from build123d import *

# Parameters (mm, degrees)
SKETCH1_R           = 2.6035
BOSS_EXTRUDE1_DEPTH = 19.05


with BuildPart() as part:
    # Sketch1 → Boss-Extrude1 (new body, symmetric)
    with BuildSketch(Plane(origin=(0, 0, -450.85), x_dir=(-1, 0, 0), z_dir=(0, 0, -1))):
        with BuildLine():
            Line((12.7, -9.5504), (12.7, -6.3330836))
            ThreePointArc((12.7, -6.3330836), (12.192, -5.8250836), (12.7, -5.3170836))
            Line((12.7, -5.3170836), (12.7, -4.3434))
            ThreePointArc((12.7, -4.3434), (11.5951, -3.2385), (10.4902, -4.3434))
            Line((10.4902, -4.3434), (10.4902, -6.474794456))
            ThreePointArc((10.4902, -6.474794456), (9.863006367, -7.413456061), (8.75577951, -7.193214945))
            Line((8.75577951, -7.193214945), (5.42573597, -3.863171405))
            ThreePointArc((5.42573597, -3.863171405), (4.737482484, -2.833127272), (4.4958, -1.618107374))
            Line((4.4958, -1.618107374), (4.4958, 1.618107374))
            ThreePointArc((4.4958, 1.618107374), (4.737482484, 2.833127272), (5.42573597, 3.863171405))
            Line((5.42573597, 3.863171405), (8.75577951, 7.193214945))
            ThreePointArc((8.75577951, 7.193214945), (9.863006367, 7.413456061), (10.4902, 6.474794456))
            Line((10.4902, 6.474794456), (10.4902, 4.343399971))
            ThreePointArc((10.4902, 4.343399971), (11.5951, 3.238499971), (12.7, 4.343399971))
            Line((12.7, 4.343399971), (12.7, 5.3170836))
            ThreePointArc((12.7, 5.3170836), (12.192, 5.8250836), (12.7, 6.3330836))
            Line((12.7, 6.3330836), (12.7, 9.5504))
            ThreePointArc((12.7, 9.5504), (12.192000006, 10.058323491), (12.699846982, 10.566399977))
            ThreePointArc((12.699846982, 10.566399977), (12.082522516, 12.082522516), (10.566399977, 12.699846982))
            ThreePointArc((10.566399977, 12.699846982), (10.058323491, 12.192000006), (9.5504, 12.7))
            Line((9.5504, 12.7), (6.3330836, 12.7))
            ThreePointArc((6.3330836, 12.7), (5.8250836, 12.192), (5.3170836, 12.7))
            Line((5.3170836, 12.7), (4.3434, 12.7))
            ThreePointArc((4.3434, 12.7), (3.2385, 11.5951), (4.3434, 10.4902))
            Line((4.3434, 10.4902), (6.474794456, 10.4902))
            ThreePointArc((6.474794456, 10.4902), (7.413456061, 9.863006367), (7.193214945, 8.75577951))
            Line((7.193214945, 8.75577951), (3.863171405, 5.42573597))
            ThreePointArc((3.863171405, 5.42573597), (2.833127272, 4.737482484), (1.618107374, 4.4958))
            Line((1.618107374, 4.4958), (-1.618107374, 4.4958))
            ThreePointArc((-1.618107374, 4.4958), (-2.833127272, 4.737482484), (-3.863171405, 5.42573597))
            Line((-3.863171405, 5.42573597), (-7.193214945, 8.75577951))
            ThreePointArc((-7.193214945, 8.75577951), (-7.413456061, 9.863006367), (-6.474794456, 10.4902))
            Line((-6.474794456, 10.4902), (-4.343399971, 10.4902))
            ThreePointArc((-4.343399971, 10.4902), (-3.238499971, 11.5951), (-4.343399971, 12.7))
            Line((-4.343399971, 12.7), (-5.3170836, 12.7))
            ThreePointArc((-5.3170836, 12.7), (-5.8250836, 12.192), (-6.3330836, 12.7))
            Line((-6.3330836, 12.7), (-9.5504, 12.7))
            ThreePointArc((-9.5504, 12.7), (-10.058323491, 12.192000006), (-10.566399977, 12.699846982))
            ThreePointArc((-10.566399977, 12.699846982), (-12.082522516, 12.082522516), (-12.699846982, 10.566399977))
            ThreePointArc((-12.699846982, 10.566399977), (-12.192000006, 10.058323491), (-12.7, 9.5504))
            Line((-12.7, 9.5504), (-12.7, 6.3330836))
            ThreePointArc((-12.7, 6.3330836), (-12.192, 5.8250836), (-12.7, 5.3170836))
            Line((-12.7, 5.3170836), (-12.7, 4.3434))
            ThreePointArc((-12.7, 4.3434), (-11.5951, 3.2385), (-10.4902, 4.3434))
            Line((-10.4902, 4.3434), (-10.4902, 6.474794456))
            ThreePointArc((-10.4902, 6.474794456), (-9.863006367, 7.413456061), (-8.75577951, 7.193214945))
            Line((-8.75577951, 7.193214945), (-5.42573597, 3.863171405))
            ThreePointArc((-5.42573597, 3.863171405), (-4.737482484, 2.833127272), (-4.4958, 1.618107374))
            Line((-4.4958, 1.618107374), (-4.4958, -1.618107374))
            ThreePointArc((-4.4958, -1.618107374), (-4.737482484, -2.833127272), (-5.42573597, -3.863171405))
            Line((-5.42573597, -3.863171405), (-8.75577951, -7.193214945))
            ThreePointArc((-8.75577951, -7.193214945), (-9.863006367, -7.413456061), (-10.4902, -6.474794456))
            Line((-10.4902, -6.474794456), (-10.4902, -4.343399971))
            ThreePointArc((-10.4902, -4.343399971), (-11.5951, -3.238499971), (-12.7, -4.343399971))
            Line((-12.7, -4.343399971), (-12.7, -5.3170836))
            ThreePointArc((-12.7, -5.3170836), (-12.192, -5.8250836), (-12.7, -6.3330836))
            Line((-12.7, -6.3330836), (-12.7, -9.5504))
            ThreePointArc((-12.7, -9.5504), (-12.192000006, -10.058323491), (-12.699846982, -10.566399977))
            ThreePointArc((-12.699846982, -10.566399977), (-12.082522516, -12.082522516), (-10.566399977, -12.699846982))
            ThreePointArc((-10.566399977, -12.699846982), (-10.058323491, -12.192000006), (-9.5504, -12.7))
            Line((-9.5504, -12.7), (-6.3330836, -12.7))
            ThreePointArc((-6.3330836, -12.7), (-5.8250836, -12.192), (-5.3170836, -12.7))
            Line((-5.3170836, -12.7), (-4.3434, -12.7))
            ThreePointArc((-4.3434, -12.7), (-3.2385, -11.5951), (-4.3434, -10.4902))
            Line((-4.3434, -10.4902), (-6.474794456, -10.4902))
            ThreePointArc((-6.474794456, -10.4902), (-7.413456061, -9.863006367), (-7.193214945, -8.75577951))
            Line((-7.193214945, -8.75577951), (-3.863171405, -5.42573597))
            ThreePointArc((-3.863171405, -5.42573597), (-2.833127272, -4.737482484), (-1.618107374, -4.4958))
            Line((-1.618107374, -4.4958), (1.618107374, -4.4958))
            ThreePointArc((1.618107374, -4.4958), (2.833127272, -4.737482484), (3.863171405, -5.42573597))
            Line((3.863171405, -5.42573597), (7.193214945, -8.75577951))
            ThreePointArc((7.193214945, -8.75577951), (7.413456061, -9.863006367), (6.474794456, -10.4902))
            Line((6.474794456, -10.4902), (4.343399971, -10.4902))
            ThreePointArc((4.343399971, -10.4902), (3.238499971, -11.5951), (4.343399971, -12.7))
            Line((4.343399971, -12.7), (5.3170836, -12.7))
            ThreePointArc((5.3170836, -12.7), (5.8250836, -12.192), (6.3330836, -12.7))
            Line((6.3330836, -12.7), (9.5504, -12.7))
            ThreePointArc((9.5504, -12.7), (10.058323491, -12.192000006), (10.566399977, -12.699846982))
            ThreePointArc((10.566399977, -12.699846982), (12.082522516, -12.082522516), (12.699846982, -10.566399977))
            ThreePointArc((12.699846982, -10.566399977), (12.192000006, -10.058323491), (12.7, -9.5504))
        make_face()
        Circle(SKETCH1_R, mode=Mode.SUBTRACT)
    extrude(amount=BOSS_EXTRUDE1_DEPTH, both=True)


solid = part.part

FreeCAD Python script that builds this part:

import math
import FreeCAD as App
import Part
import Sketcher

V = App.Vector
Q = App.Units.Quantity

doc = App.newDocument("Part")
body = doc.addObject("PartDesign::Body", "Body")

# Sketch on XY plane
sketch1 = doc.addObject("Sketcher::SketchObject", "Sketch")
body.addObject(sketch1)
sketch1.AttachmentSupport = (doc.XY_Plane, [""])
sketch1.MapMode = "FlatFace"
sketch1.AttachmentOffset = App.Placement(V(0, 0, -17.75 * 25.4), App.Rotation())
sketch1.addGeometry([
    Part.LineSegment(V(-12.7, -9.6, 0), V(-12.7, -6.3, 0)),  # 0
    Part.ArcOfCircle(Part.Circle(V(-12.7, -5.8, 0), V(0, 0, 1), 0.5), math.radians(-90), math.radians(90)),  # 1
    Part.LineSegment(V(-12.7, -5.3, 0), V(-12.7, -4.3, 0)),  # 2
    Part.ArcOfCircle(Part.Circle(V(-11.6, -4.3, 0), V(0, 0, 1), 1.1), math.radians(0), math.radians(180)),  # 3
    Part.LineSegment(V(-10.5, -4.3, 0), V(-10.5, -6.5, 0)),  # 4
    Part.ArcOfCircle(Part.Circle(V(-9.5, -6.5, 0), V(0, 0, 1), 1), math.radians(180), math.radians(315)),  # 5
    Part.LineSegment(V(-8.8, -7.2, 0), V(-5.4, -3.9, 0)),  # 6
    Part.ArcOfCircle(Part.Circle(V(-7.7, -1.6, 0), V(0, 0, 1), 3.2), math.radians(-45), math.radians(0)),  # 7
    Part.LineSegment(V(-4.5, -1.6, 0), V(-4.5, 1.6, 0)),  # 8
    Part.ArcOfCircle(Part.Circle(V(-7.7, 1.6, 0), V(0, 0, 1), 3.2), math.radians(0), math.radians(45)),  # 9
    Part.LineSegment(V(-5.4, 3.9, 0), V(-8.8, 7.2, 0)),  # 10
    Part.ArcOfCircle(Part.Circle(V(-9.5, 6.5, 0), V(0, 0, 1), 1), math.radians(45), math.radians(180)),  # 11
    Part.LineSegment(V(-10.5, 6.5, 0), V(-10.5, 4.3, 0)),  # 12
    Part.ArcOfCircle(Part.Circle(V(-11.6, 4.3, 0), V(0, 0, 1), 1.1), math.radians(180), math.radians(360)),  # 13
    Part.LineSegment(V(-12.7, 4.3, 0), V(-12.7, 5.3, 0)),  # 14
    Part.ArcOfCircle(Part.Circle(V(-12.7, 5.8, 0), V(0, 0, 1), 0.5), math.radians(-90), math.radians(90)),  # 15
    Part.LineSegment(V(-12.7, 6.3, 0), V(-12.7, 9.6, 0)),  # 16
    Part.ArcOfCircle(Part.Circle(V(-12.7, 10.1, 0), V(0, 0, 1), 0.5), math.radians(-90), math.radians(90)),  # 17
    Part.ArcOfCircle(Part.Circle(V(-10.6, 10.6, 0), V(0, 0, 1), 2.1), math.radians(89), math.radians(181)),  # 18
    Part.ArcOfCircle(Part.Circle(V(-10.1, 12.7, 0), V(0, 0, 1), 0.5), math.radians(-180), math.radians(0)),  # 19
    Part.LineSegment(V(-9.6, 12.7, 0), V(-6.3, 12.7, 0)),  # 20
    Part.ArcOfCircle(Part.Circle(V(-5.8, 12.7, 0), V(0, 0, 1), 0.5), math.radians(180), math.radians(360)),  # 21
    Part.LineSegment(V(-5.3, 12.7, 0), V(-4.3, 12.7, 0)),  # 22
    Part.ArcOfCircle(Part.Circle(V(-4.3, 11.6, 0), V(0, 0, 1), 1.1), math.radians(-90), math.radians(90)),  # 23
    Part.LineSegment(V(-4.3, 10.5, 0), V(-6.5, 10.5, 0)),  # 24
    Part.ArcOfCircle(Part.Circle(V(-6.5, 9.5, 0), V(0, 0, 1), 1), math.radians(90), math.radians(225)),  # 25
    Part.LineSegment(V(-7.2, 8.8, 0), V(-3.9, 5.4, 0)),  # 26
    Part.ArcOfCircle(Part.Circle(V(-1.6, 7.7, 0), V(0, 0, 1), 3.2), math.radians(-135), math.radians(-90)),  # 27
    Part.LineSegment(V(-1.6, 4.5, 0), V(1.6, 4.5, 0)),  # 28
    Part.ArcOfCircle(Part.Circle(V(1.6, 7.7, 0), V(0, 0, 1), 3.2), math.radians(-90), math.radians(-45)),  # 29
    Part.LineSegment(V(3.9, 5.4, 0), V(7.2, 8.8, 0)),  # 30
    Part.ArcOfCircle(Part.Circle(V(6.5, 9.5, 0), V(0, 0, 1), 1), math.radians(-45), math.radians(90)),  # 31
    Part.LineSegment(V(6.5, 10.5, 0), V(4.3, 10.5, 0)),  # 32
    Part.ArcOfCircle(Part.Circle(V(4.3, 11.6, 0), V(0, 0, 1), 1.1), math.radians(90), math.radians(270)),  # 33
    Part.LineSegment(V(4.3, 12.7, 0), V(5.3, 12.7, 0)),  # 34
    Part.ArcOfCircle(Part.Circle(V(5.8, 12.7, 0), V(0, 0, 1), 0.5), math.radians(180), math.radians(360)),  # 35
    Part.LineSegment(V(6.3, 12.7, 0), V(9.6, 12.7, 0)),  # 36
    Part.ArcOfCircle(Part.Circle(V(10.1, 12.7, 0), V(0, 0, 1), 0.5), math.radians(180), math.radians(360)),  # 37
    Part.ArcOfCircle(Part.Circle(V(10.6, 10.6, 0), V(0, 0, 1), 2.1), math.radians(-1), math.radians(91)),  # 38
    Part.ArcOfCircle(Part.Circle(V(12.7, 10.1, 0), V(0, 0, 1), 0.5), math.radians(90), math.radians(270)),  # 39
    Part.LineSegment(V(12.7, 9.6, 0), V(12.7, 6.3, 0)),  # 40
    Part.ArcOfCircle(Part.Circle(V(12.7, 5.8, 0), V(0, 0, 1), 0.5), math.radians(90), math.radians(270)),  # 41
    Part.LineSegment(V(12.7, 5.3, 0), V(12.7, 4.3, 0)),  # 42
    Part.ArcOfCircle(Part.Circle(V(11.6, 4.3, 0), V(0, 0, 1), 1.1), math.radians(180), math.radians(360)),  # 43
    Part.LineSegment(V(10.5, 4.3, 0), V(10.5, 6.5, 0)),  # 44
    Part.ArcOfCircle(Part.Circle(V(9.5, 6.5, 0), V(0, 0, 1), 1), math.radians(0), math.radians(135)),  # 45
    Part.LineSegment(V(8.8, 7.2, 0), V(5.4, 3.9, 0)),  # 46
    Part.ArcOfCircle(Part.Circle(V(7.7, 1.6, 0), V(0, 0, 1), 3.2), math.radians(135), math.radians(180)),  # 47
    Part.LineSegment(V(4.5, 1.6, 0), V(4.5, -1.6, 0)),  # 48
    Part.ArcOfCircle(Part.Circle(V(7.7, -1.6, 0), V(0, 0, 1), 3.2), math.radians(180), math.radians(225)),  # 49
    Part.LineSegment(V(5.4, -3.9, 0), V(8.8, -7.2, 0)),  # 50
    Part.ArcOfCircle(Part.Circle(V(9.5, -6.5, 0), V(0, 0, 1), 1), math.radians(-135), math.radians(0)),  # 51
    Part.LineSegment(V(10.5, -6.5, 0), V(10.5, -4.3, 0)),  # 52
    Part.ArcOfCircle(Part.Circle(V(11.6, -4.3, 0), V(0, 0, 1), 1.1), math.radians(0), math.radians(180)),  # 53
    Part.LineSegment(V(12.7, -4.3, 0), V(12.7, -5.3, 0)),  # 54
    Part.ArcOfCircle(Part.Circle(V(12.7, -5.8, 0), V(0, 0, 1), 0.5), math.radians(90), math.radians(270)),  # 55
    Part.LineSegment(V(12.7, -6.3, 0), V(12.7, -9.6, 0)),  # 56
    Part.ArcOfCircle(Part.Circle(V(12.7, -10.1, 0), V(0, 0, 1), 0.5), math.radians(90), math.radians(270)),  # 57
    Part.ArcOfCircle(Part.Circle(V(10.6, -10.6, 0), V(0, 0, 1), 2.1), math.radians(-91), math.radians(1)),  # 58
    Part.ArcOfCircle(Part.Circle(V(10.1, -12.7, 0), V(0, 0, 1), 0.5), math.radians(0), math.radians(180)),  # 59
    Part.LineSegment(V(9.6, -12.7, 0), V(6.3, -12.7, 0)),  # 60
    Part.ArcOfCircle(Part.Circle(V(5.8, -12.7, 0), V(0, 0, 1), 0.5), math.radians(0), math.radians(180)),  # 61
    Part.LineSegment(V(5.3, -12.7, 0), V(4.3, -12.7, 0)),  # 62
    Part.ArcOfCircle(Part.Circle(V(4.3, -11.6, 0), V(0, 0, 1), 1.1), math.radians(90), math.radians(270)),  # 63
    Part.LineSegment(V(4.3, -10.5, 0), V(6.5, -10.5, 0)),  # 64
    Part.ArcOfCircle(Part.Circle(V(6.5, -9.5, 0), V(0, 0, 1), 1), math.radians(-90), math.radians(45)),  # 65
    Part.LineSegment(V(7.2, -8.8, 0), V(3.9, -5.4, 0)),  # 66
    Part.ArcOfCircle(Part.Circle(V(1.6, -7.7, 0), V(0, 0, 1), 3.2), math.radians(45), math.radians(90)),  # 67
    Part.LineSegment(V(1.6, -4.5, 0), V(-1.6, -4.5, 0)),  # 68
    Part.ArcOfCircle(Part.Circle(V(-1.6, -7.7, 0), V(0, 0, 1), 3.2), math.radians(90), math.radians(135)),  # 69
    Part.LineSegment(V(-3.9, -5.4, 0), V(-7.2, -8.8, 0)),  # 70
    Part.ArcOfCircle(Part.Circle(V(-6.5, -9.5, 0), V(0, 0, 1), 1), math.radians(135), math.radians(270)),  # 71
    Part.LineSegment(V(-6.5, -10.5, 0), V(-4.3, -10.5, 0)),  # 72
    Part.ArcOfCircle(Part.Circle(V(-4.3, -11.6, 0), V(0, 0, 1), 1.1), math.radians(-90), math.radians(90)),  # 73
    Part.LineSegment(V(-4.3, -12.7, 0), V(-5.3, -12.7, 0)),  # 74
    Part.ArcOfCircle(Part.Circle(V(-5.8, -12.7, 0), V(0, 0, 1), 0.5), math.radians(0), math.radians(180)),  # 75
    Part.LineSegment(V(-6.3, -12.7, 0), V(-9.6, -12.7, 0)),  # 76
    Part.ArcOfCircle(Part.Circle(V(-10.1, -12.7, 0), V(0, 0, 1), 0.5), math.radians(0), math.radians(180)),  # 77
    Part.ArcOfCircle(Part.Circle(V(-10.6, -10.6, 0), V(0, 0, 1), 2.1), math.radians(179), math.radians(271)),  # 78
    Part.ArcOfCircle(Part.Circle(V(-12.7, -10.1, 0), V(0, 0, 1), 0.5), math.radians(-90), math.radians(90)),  # 79
    Part.Circle(V(0, 0, 0), V(0, 0, 1), 2.6),  # 80
], False)
sketch1.addConstraint([
    Sketcher.Constraint("Coincident", 0, 2, 1, 1),
    Sketcher.Constraint("Coincident", 1, 2, 2, 1),
    Sketcher.Constraint("Tangent", 2, 2, 3, 2),
    Sketcher.Constraint("Tangent", 3, 1, 4, 1),
    Sketcher.Constraint("Tangent", 4, 2, 5, 1),
    Sketcher.Constraint("Tangent", 5, 2, 6, 1),
    Sketcher.Constraint("Tangent", 6, 2, 7, 1),
    Sketcher.Constraint("Tangent", 7, 2, 8, 1),
    Sketcher.Constraint("Tangent", 8, 2, 9, 1),
    Sketcher.Constraint("Tangent", 9, 2, 10, 1),
    Sketcher.Constraint("Tangent", 10, 2, 11, 1),
    Sketcher.Constraint("Tangent", 11, 2, 12, 1),
    Sketcher.Constraint("Tangent", 12, 2, 13, 2),
    Sketcher.Constraint("Tangent", 13, 1, 14, 1),
    Sketcher.Constraint("Coincident", 14, 2, 15, 1),
    Sketcher.Constraint("Coincident", 15, 2, 16, 1),
    Sketcher.Constraint("Coincident", 16, 2, 17, 1),
    Sketcher.Constraint("Coincident", 17, 2, 18, 2),
    Sketcher.Constraint("Coincident", 18, 1, 19, 1),
    Sketcher.Constraint("Coincident", 19, 2, 20, 1),
    Sketcher.Constraint("Coincident", 20, 2, 21, 1),
    Sketcher.Constraint("Coincident", 21, 2, 22, 1),
    Sketcher.Constraint("Tangent", 22, 2, 23, 2),
    Sketcher.Constraint("Tangent", 23, 1, 24, 1),
    Sketcher.Constraint("Tangent", 24, 2, 25, 1),
    Sketcher.Constraint("Tangent", 25, 2, 26, 1),
    Sketcher.Constraint("Tangent", 26, 2, 27, 1),
    Sketcher.Constraint("Tangent", 27, 2, 28, 1),
    Sketcher.Constraint("Tangent", 28, 2, 29, 1),
    Sketcher.Constraint("Tangent", 29, 2, 30, 1),
    Sketcher.Constraint("Tangent", 30, 2, 31, 1),
    Sketcher.Constraint("Tangent", 31, 2, 32, 1),
    Sketcher.Constraint("Tangent", 32, 2, 33, 2),
    Sketcher.Constraint("Tangent", 33, 1, 34, 1),
    Sketcher.Constraint("Coincident", 34, 2, 35, 1),
    Sketcher.Constraint("Coincident", 35, 2, 36, 1),
    Sketcher.Constraint("Coincident", 36, 2, 37, 1),
    Sketcher.Constraint("Coincident", 37, 2, 38, 2),
    Sketcher.Constraint("Coincident", 38, 1, 39, 1),
    Sketcher.Constraint("Coincident", 39, 2, 40, 1),
    Sketcher.Constraint("Coincident", 40, 2, 41, 1),
    Sketcher.Constraint("Coincident", 41, 2, 42, 1),
    Sketcher.Constraint("Tangent", 42, 2, 43, 2),
    Sketcher.Constraint("Tangent", 43, 1, 44, 1),
    Sketcher.Constraint("Tangent", 44, 2, 45, 1),
    Sketcher.Constraint("Tangent", 45, 2, 46, 1),
    Sketcher.Constraint("Tangent", 46, 2, 47, 1),
    Sketcher.Constraint("Tangent", 47, 2, 48, 1),
    Sketcher.Constraint("Tangent", 48, 2, 49, 1),
    Sketcher.Constraint("Tangent", 49, 2, 50, 1),
    Sketcher.Constraint("Tangent", 50, 2, 51, 1),
    Sketcher.Constraint("Tangent", 51, 2, 52, 1),
    Sketcher.Constraint("Tangent", 52, 2, 53, 2),
    Sketcher.Constraint("Tangent", 53, 1, 54, 1),
    Sketcher.Constraint("Coincident", 54, 2, 55, 1),
    Sketcher.Constraint("Coincident", 55, 2, 56, 1),
    Sketcher.Constraint("Coincident", 56, 2, 57, 1),
    Sketcher.Constraint("Coincident", 57, 2, 58, 2),
    Sketcher.Constraint("Coincident", 58, 1, 59, 1),
    Sketcher.Constraint("Coincident", 59, 2, 60, 1),
    Sketcher.Constraint("Coincident", 60, 2, 61, 1),
    Sketcher.Constraint("Coincident", 61, 2, 62, 1),
    Sketcher.Constraint("Tangent", 62, 2, 63, 2),
    Sketcher.Constraint("Tangent", 63, 1, 64, 1),
    Sketcher.Constraint("Tangent", 64, 2, 65, 1),
    Sketcher.Constraint("Tangent", 65, 2, 66, 1),
    Sketcher.Constraint("Tangent", 66, 2, 67, 1),
    Sketcher.Constraint("Tangent", 67, 2, 68, 1),
    Sketcher.Constraint("Tangent", 68, 2, 69, 1),
    Sketcher.Constraint("Tangent", 69, 2, 70, 1),
    Sketcher.Constraint("Tangent", 70, 2, 71, 1),
    Sketcher.Constraint("Tangent", 71, 2, 72, 1),
    Sketcher.Constraint("Tangent", 72, 2, 73, 2),
    Sketcher.Constraint("Tangent", 73, 1, 74, 1),
    Sketcher.Constraint("Coincident", 74, 2, 75, 1),
    Sketcher.Constraint("Coincident", 75, 2, 76, 1),
    Sketcher.Constraint("Coincident", 76, 2, 77, 1),
    Sketcher.Constraint("Coincident", 77, 2, 78, 2),
    Sketcher.Constraint("Coincident", 78, 1, 79, 1),
    Sketcher.Constraint("Coincident", 79, 2, 0, 1),
    Sketcher.Constraint("Vertical", 0),
    Sketcher.Constraint("Vertical", 2),
    Sketcher.Constraint("Vertical", 4),
    Sketcher.Constraint("Vertical", 8),
    Sketcher.Constraint("Vertical", 12),
    Sketcher.Constraint("Vertical", 14),
    Sketcher.Constraint("Vertical", 16),
    Sketcher.Constraint("Horizontal", 20),
    Sketcher.Constraint("Horizontal", 22),
    Sketcher.Constraint("Horizontal", 24),
    Sketcher.Constraint("Horizontal", 28),
    Sketcher.Constraint("Horizontal", 32),
    Sketcher.Constraint("Horizontal", 34),
    Sketcher.Constraint("Horizontal", 36),
    Sketcher.Constraint("Vertical", 40),
    Sketcher.Constraint("Vertical", 42),
    Sketcher.Constraint("Vertical", 44),
    Sketcher.Constraint("Vertical", 48),
    Sketcher.Constraint("Vertical", 52),
    Sketcher.Constraint("Vertical", 54),
    Sketcher.Constraint("Vertical", 56),
    Sketcher.Constraint("Horizontal", 60),
    Sketcher.Constraint("Horizontal", 62),
    Sketcher.Constraint("Horizontal", 64),
    Sketcher.Constraint("Horizontal", 68),
    Sketcher.Constraint("Horizontal", 72),
    Sketcher.Constraint("Horizontal", 74),
    Sketcher.Constraint("Horizontal", 76),
    Sketcher.Constraint("Coincident", 80, 3, -1, 1),
    Sketcher.Constraint("Equal", 7, 9),
    Sketcher.Constraint("Equal", 5, 11),
    Sketcher.Constraint("Equal", 3, 13),
    Sketcher.Constraint("Equal", 1, 15),
    Sketcher.Constraint("Equal", 15, 17),
    Sketcher.Constraint("Equal", 17, 19),
    Sketcher.Constraint("Equal", 19, 21),
    Sketcher.Constraint("Equal", 13, 23),
    Sketcher.Constraint("Equal", 11, 25),
    Sketcher.Constraint("Equal", 9, 27),
    Sketcher.Constraint("Equal", 27, 29),
    Sketcher.Constraint("Equal", 25, 31),
    Sketcher.Constraint("Equal", 23, 33),
    Sketcher.Constraint("Equal", 21, 35),
    Sketcher.Constraint("Equal", 35, 37),
    Sketcher.Constraint("Equal", 18, 38),
    Sketcher.Constraint("Equal", 37, 39),
    Sketcher.Constraint("Equal", 39, 41),
    Sketcher.Constraint("Equal", 33, 43),
    Sketcher.Constraint("Equal", 31, 45),
    Sketcher.Constraint("Equal", 29, 47),
    Sketcher.Constraint("Equal", 47, 49),
    Sketcher.Constraint("Equal", 45, 51),
    Sketcher.Constraint("Equal", 43, 53),
    Sketcher.Constraint("Equal", 41, 55),
    Sketcher.Constraint("Equal", 55, 57),
    Sketcher.Constraint("Equal", 38, 58),
    Sketcher.Constraint("Equal", 57, 59),
    Sketcher.Constraint("Equal", 59, 61),
    Sketcher.Constraint("Equal", 53, 63),
    Sketcher.Constraint("Equal", 51, 65),
    Sketcher.Constraint("Equal", 49, 67),
    Sketcher.Constraint("Equal", 67, 69),
    Sketcher.Constraint("Equal", 65, 71),
    Sketcher.Constraint("Equal", 63, 73),
    Sketcher.Constraint("Equal", 61, 75),
    Sketcher.Constraint("Equal", 75, 77),
    Sketcher.Constraint("Equal", 58, 78),
    Sketcher.Constraint("Equal", 77, 79),
    Sketcher.Constraint("Symmetric", 1, 3, 41, 3, -1, 1),
    Sketcher.Constraint("Symmetric", 3, 3, 43, 3, -1, 1),
    Sketcher.Constraint("Symmetric", 7, 3, 47, 3, -1, 1),
    Sketcher.Constraint("Symmetric", 11, 3, 51, 3, -1, 1),
    Sketcher.Constraint("Symmetric", 15, 3, 55, 3, -1, 1),
    Sketcher.Constraint("Symmetric", 17, 3, 57, 3, -1, 1),
    Sketcher.Constraint("Symmetric", 18, 3, 58, 3, -1, 1),
    Sketcher.Constraint("Symmetric", 19, 3, 59, 3, -1, 1),
    Sketcher.Constraint("Symmetric", 21, 3, 61, 3, -1, 1),
    Sketcher.Constraint("Symmetric", 23, 3, 63, 3, -1, 1),
    Sketcher.Constraint("Symmetric", 27, 3, 67, 3, -1, 1),
    Sketcher.Constraint("Symmetric", 31, 3, 71, 3, -1, 1),
    Sketcher.Constraint("Symmetric", 35, 3, 75, 3, -1, 1),
    Sketcher.Constraint("Symmetric", 37, 3, 77, 3, -1, 1),
    Sketcher.Constraint("Symmetric", 38, 3, 78, 3, -1, 1),
    Sketcher.Constraint("Symmetric", 39, 3, 79, 3, -1, 1),
    Sketcher.Constraint("Symmetric", 25, 3, 31, 3, -2),
    Sketcher.Constraint("Symmetric", 21, 3, 35, 3, -2),
    Sketcher.Constraint("Symmetric", 19, 3, 37, 3, -2),
    Sketcher.Constraint("Symmetric", 18, 3, 38, 3, -2),
    Sketcher.Constraint("Symmetric", 17, 3, 39, 3, -2),
    Sketcher.Constraint("Symmetric", 15, 3, 41, 3, -2),
    Sketcher.Constraint("Symmetric", 13, 3, 43, 3, -2),
    Sketcher.Constraint("Symmetric", 10, 2, 45, 2, -2),
    Sketcher.Constraint("Symmetric", 6, 2, 49, 2, -2),
    Sketcher.Constraint("Symmetric", 66, 2, 69, 2, -2),
    Sketcher.Constraint("Perpendicular", 6, 10),
    Sketcher.Constraint("Parallel", 10, 26),
    Sketcher.Constraint("Perpendicular", 26, 30),
    Sketcher.Constraint("Horizontal", 19, 3, 21, 3),
    Sketcher.Constraint("Horizontal", 3, 3, 53, 3),
    Sketcher.Constraint("Horizontal", 37, 3, 19, 2),
    Sketcher.Constraint("Horizontal", 20, 2, 21, 2),
    Sketcher.Constraint("Horizontal", 34, 2, 35, 2),
    Sketcher.Constraint("Horizontal", 77, 3, 59, 2),
    Sketcher.Constraint("Horizontal", 74, 2, 75, 2),
    Sketcher.Constraint("Vertical", 15, 3, 17, 3),
    Sketcher.Constraint("Vertical", 33, 3, 63, 3),
    Sketcher.Constraint("Vertical", 23, 3, 73, 3),
    Sketcher.Constraint("Vertical", 79, 3, 0, 2),
    Sketcher.Constraint("Vertical", 0, 2, 1, 2),
    Sketcher.Constraint("Vertical", 14, 2, 15, 2),
    Sketcher.Constraint("Vertical", 57, 3, 39, 2),
    Sketcher.Constraint("Vertical", 54, 2, 55, 2),
    Sketcher.Constraint("Equal", 76, 0),
    Sketcher.Constraint("Equal", 74, 2),
    Sketcher.Constraint("Equal", 72, 4),
    Sketcher.Constraint("Equal", 68, 8),
    Sketcher.Constraint("Equal", 10, 26),
    Sketcher.Constraint("Radius", 1, Q("0.02 in")),
    Sketcher.Constraint("Radius", 5, Q("0.04 in")),
    Sketcher.Constraint("Diameter", 80, Q("0.205 in")),
    Sketcher.Constraint("Radius", 7, Q("0.125 in")),
    Sketcher.Constraint("Radius", 18, Q("0.083 in")),
    Sketcher.Constraint("DistanceX", 1, 3, -1, 1, Q("0.5 in")),
    Sketcher.Constraint("DistanceY", -1, 1, 19, 3, Q("0.5 in")),
    Sketcher.Constraint("Radius", 3, Q("0.0435 in")),
    Sketcher.Constraint("DistanceY", 3, 3, -1, 1, Q("0.171 in")),
    Sketcher.Constraint("DistanceX", 7, 3, -1, 1, Q("0.302 in")),
    Sketcher.Constraint("DistanceY", -1, 1, 17, 3, Q("0.396 in")),
    Sketcher.Constraint("DistanceX", 18, 3, -1, 1, Q("0.417 in")),
    Sketcher.Constraint("DistanceY", -1, 1, 18, 3, Q("0.417 in")),
    Sketcher.Constraint("DistanceX", 20, 1, 20, 2, 3.217316),
    Sketcher.Constraint("DistanceX", 24, 2, 24, 1, 2.131394),
])
pad1 = doc.addObject("PartDesign::Pad", "Pad")
body.addObject(pad1)
pad1.Profile = sketch1
pad1.Length = Q("1.5 in")
pad1.Midplane = True

doc.recompute()
